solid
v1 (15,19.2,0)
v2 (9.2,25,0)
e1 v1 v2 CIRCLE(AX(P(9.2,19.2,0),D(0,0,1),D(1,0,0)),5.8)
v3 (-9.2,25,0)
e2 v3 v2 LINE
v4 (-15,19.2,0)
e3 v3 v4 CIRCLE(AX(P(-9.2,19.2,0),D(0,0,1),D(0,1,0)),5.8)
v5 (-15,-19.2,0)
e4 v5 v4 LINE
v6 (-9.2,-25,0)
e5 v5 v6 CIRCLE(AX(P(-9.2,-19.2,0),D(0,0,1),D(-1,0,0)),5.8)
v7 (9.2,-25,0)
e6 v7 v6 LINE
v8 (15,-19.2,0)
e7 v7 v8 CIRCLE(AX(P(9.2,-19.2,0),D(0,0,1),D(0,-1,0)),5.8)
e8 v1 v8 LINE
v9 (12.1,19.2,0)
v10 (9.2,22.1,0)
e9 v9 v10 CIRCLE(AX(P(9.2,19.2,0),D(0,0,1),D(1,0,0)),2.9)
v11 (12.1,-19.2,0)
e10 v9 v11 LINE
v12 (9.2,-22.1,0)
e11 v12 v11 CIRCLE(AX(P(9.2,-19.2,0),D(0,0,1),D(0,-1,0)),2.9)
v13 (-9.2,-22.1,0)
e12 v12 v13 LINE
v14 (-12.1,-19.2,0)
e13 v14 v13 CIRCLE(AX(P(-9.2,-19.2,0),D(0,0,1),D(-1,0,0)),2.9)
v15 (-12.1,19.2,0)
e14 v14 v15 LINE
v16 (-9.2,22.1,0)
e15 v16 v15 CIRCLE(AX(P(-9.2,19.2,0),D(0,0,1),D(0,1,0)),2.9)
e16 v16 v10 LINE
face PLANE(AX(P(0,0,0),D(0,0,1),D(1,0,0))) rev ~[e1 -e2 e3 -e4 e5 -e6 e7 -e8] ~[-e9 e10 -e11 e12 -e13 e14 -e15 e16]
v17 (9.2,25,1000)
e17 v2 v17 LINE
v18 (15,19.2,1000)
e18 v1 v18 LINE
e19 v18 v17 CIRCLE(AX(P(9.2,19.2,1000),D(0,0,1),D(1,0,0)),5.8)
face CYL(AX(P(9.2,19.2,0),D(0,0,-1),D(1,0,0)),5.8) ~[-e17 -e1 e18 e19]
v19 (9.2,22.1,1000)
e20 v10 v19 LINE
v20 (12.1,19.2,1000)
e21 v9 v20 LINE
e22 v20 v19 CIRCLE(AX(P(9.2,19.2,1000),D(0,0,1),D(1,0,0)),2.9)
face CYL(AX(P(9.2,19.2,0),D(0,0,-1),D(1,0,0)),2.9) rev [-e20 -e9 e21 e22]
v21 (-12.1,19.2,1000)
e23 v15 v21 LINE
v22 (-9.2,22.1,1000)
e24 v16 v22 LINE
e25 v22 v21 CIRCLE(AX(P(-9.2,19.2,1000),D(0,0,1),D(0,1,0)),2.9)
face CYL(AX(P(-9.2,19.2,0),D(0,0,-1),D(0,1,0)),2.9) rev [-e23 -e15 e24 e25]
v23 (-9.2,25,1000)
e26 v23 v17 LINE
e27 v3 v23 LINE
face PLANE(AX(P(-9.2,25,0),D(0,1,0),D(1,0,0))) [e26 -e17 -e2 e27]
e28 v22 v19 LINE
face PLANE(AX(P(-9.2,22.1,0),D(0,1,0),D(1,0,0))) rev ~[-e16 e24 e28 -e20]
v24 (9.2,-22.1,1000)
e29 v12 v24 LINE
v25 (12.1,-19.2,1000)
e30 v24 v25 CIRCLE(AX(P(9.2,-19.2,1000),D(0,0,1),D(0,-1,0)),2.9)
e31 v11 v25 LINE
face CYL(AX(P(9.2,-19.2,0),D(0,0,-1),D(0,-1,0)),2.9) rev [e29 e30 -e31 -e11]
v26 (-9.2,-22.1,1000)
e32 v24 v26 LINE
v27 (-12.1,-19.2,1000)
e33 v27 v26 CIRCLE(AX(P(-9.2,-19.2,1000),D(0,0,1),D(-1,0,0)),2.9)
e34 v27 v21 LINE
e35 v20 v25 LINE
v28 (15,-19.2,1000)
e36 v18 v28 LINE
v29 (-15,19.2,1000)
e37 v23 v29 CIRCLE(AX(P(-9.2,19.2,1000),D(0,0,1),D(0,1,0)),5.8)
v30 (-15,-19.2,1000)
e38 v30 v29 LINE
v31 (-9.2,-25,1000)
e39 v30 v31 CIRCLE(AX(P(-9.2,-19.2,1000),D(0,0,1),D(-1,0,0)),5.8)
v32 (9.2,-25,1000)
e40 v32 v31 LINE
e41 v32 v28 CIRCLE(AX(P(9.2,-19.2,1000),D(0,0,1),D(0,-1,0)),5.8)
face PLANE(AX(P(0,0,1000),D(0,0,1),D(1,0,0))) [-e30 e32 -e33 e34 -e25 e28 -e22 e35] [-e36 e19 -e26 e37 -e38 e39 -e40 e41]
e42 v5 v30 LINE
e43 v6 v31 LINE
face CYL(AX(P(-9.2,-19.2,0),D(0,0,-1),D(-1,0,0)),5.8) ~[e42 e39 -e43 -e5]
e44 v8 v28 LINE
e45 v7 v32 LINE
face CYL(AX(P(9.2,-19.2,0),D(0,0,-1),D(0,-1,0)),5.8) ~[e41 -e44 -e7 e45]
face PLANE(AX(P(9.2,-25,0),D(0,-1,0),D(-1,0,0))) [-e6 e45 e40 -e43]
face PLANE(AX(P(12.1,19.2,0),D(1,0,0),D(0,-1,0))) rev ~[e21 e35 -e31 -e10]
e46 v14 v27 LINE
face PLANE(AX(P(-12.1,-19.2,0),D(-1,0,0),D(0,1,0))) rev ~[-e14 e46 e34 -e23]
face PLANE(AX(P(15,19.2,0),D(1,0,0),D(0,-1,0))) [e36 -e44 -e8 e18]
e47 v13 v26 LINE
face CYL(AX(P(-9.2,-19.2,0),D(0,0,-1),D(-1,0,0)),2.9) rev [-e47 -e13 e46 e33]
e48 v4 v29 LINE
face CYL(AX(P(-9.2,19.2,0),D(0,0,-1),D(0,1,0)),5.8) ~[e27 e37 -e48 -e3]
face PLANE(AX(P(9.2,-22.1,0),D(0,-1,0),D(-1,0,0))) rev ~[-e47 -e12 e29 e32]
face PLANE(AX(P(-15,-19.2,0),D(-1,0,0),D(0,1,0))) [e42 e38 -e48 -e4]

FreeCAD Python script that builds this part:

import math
import FreeCAD as App
import Part
import Sketcher

doc = App.newDocument("Part")
body = doc.addObject("PartDesign::Body", "Body")

# Sketch on XY plane
sketch1 = body.newObject("Sketcher::SketchObject", "Sketch")
sketch1.AttachmentSupport = (doc.getObject("XY_Plane"), [""])
sketch1.MapMode = "FlatFace"
sketch1.addGeometry([
    Part.LineSegment(App.Vector(9.2, 25, 0), App.Vector(-9.2, 25, 0)),  # 0
    Part.ArcOfCircle(Part.Circle(App.Vector(-9.2, 19.2, 0), App.Vector(0, 0, 1), 5.8), math.radians(90), math.radians(180)),  # 1
    Part.LineSegment(App.Vector(-15, 19.2, 0), App.Vector(-15, -19.2, 0)),  # 2
    Part.ArcOfCircle(Part.Circle(App.Vector(-9.2, -19.2, 0), App.Vector(0, 0, 1), 5.8), math.radians(180), math.radians(270)),  # 3
    Part.LineSegment(App.Vector(-9.2, -25, 0), App.Vector(9.2, -25, 0)),  # 4
    Part.ArcOfCircle(Part.Circle(App.Vector(9.2, -19.2, 0), App.Vector(0, 0, 1), 5.8), math.radians(-90), math.radians(0)),  # 5
    Part.LineSegment(App.Vector(15, -19.2, 0), App.Vector(15, 19.2, 0)),  # 6
    Part.ArcOfCircle(Part.Circle(App.Vector(9.2, 19.2, 0), App.Vector(0, 0, 1), 5.8), math.radians(0), math.radians(90)),  # 7
    Part.ArcOfCircle(Part.Circle(App.Vector(-9.2, 19.2, 0), App.Vector(0, 0, 1), 2.9), math.radians(90), math.radians(180)),  # 8
    Part.LineSegment(App.Vector(-9.2, 22.1, 0), App.Vector(9.2, 22.1, 0)),  # 9
    Part.ArcOfCircle(Part.Circle(App.Vector(9.2, 19.2, 0), App.Vector(0, 0, 1), 2.9), math.radians(0), math.radians(90)),  # 10
    Part.LineSegment(App.Vector(12.1, 19.2, 0), App.Vector(12.1, -19.2, 0)),  # 11
    Part.ArcOfCircle(Part.Circle(App.Vector(9.2, -19.2, 0), App.Vector(0, 0, 1), 2.9), math.radians(-90), math.radians(0)),  # 12
    Part.LineSegment(App.Vector(9.2, -22.1, 0), App.Vector(-9.2, -22.1, 0)),  # 13
    Part.ArcOfCircle(Part.Circle(App.Vector(-9.2, -19.2, 0), App.Vector(0, 0, 1), 2.9), math.radians(180), math.radians(270)),  # 14
    Part.LineSegment(App.Vector(-12.1, -19.2, 0), App.Vector(-12.1, 19.2, 0)),  # 15
], False)
sketch1.addConstraint([
    Sketcher.Constraint("Tangent", 0, 2, 1, 1),
    Sketcher.Constraint("Tangent", 1, 2, 2, 1),
    Sketcher.Constraint("Tangent", 2, 2, 3, 1),
    Sketcher.Constraint("Tangent", 3, 2, 4, 1),
    Sketcher.Constraint("Tangent", 4, 2, 5, 1),
    Sketcher.Constraint("Tangent", 5, 2, 6, 1),
    Sketcher.Constraint("Tangent", 6, 2, 7, 1),
    Sketcher.Constraint("Tangent", 7, 2, 0, 1),
    Sketcher.Constraint("Tangent", 8, 1, 9, 1),
    Sketcher.Constraint("Tangent", 9, 2, 10, 2),
    Sketcher.Constraint("Tangent", 10, 1, 11, 1),
    Sketcher.Constraint("Tangent", 11, 2, 12, 2),
    Sketcher.Constraint("Tangent", 12, 1, 13, 1),
    Sketcher.Constraint("Tangent", 13, 2, 14, 2),
    Sketcher.Constraint("Tangent", 14, 1, 15, 1),
    Sketcher.Constraint("Tangent", 15, 2, 8, 2),
    Sketcher.Constraint("Horizontal", 0),
    Sketcher.Constraint("Vertical", 2),
    Sketcher.Constraint("Horizontal", 4),
    Sketcher.Constraint("Vertical", 6),
    Sketcher.Constraint("Horizontal", 9),
    Sketcher.Constraint("Vertical", 11),
    Sketcher.Constraint("Horizontal", 13),
    Sketcher.Constraint("Vertical", 15),
    Sketcher.Constraint("Coincident", 8, 3, 1, 3),
    Sketcher.Constraint("Coincident", 10, 3, 7, 3),
    Sketcher.Constraint("Coincident", 12, 3, 5, 3),
    Sketcher.Constraint("Equal", 1, 3),
    Sketcher.Constraint("Equal", 3, 5),
    Sketcher.Constraint("Equal", 5, 7),
    Sketcher.Constraint("Equal", 12, 14),
    Sketcher.Constraint("Symmetric", 1, 3, 5, 3, -1, 1),
    Sketcher.Constraint("Radius", 1, 5.8),
    Sketcher.Constraint("Radius", 8, 2.9),
    Sketcher.Constraint("DistanceY", -1, 1, 0, 2, 25.0),
    Sketcher.Constraint("DistanceX", 1, 2, -1, 1, 15.0),
])
pad1 = body.newObject("PartDesign::Pad", "Pad")
pad1.Profile = sketch1
pad1.Length = 1000

doc.recompute()
